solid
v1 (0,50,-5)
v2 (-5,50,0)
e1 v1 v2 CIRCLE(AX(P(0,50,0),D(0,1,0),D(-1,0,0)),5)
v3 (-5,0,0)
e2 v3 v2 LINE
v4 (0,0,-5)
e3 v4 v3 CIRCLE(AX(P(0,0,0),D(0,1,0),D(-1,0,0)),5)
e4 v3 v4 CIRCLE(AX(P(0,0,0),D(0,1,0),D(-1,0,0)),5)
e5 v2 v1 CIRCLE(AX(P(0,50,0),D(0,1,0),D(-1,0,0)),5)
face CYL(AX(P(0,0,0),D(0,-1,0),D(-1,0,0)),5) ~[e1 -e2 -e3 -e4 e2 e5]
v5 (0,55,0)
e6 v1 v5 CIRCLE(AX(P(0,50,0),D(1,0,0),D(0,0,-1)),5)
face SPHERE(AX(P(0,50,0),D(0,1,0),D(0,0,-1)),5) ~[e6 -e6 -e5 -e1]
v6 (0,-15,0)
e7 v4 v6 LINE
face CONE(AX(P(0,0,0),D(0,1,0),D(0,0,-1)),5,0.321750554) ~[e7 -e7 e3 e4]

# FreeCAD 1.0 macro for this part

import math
import FreeCAD as App
import Part
import Sketcher


def add_polygon(sketch, points):
    """Adds a closed chain of lines whose ends are joined by coincident constraints."""
    first, n = sketch.GeometryCount, len(points)
    for a, b in zip(points, points[1:] + points[:1]):
        sketch.addGeometry(Part.LineSegment(App.Vector(*a, 0), App.Vector(*b, 0)), False)
    for i in range(n):
        sketch.addConstraint(Sketcher.Constraint("Coincident", first + i, 2, first + (i + 1) % n, 1))

doc = App.newDocument("Part")
body = doc.addObject("PartDesign::Body", "Body")

sketch1 = body.newObject("Sketcher::SketchObject", "Sketch")
sketch1.AttachmentSupport = (doc.getObject("XZ_Plane"), [""])
sketch1.MapMode = "FlatFace"
sketch1.addGeometry(Part.Circle(App.Vector(0, 0, 0), App.Vector(0, 0, 1), 5), False)
sketch1.addConstraint([
    Sketcher.Constraint("Coincident", 0, 3, -1, 1),
    Sketcher.Constraint("Diameter", 0, 10.0),
])
pad1 = body.newObject("PartDesign::Pad", "Pad")
pad1.Profile = sketch1
pad1.Length = 50
pad1.Reversed = True

sketch2 = body.newObject("Sketcher::SketchObject", "Sketch001")
sketch2.AttachmentSupport = (doc.getObject("YZ_Plane"), [""])
sketch2.MapMode = "FlatFace"
add_polygon(sketch2, [(0, -5), (0, 0), (-15, 0)])
sketch2.addConstraint([
    Sketcher.Constraint("Vertical", 0),
    Sketcher.Constraint("Horizontal", 1),
    Sketcher.Constraint("Coincident", 0, 2, -1, 1),
    Sketcher.Constraint("DistanceX", 1, 2, 1, 1, 15.0),
    Sketcher.Constraint("DistanceY", 0, 1, 0, 2, 5.0),
])
revolution = body.newObject("PartDesign::Revolution", "Revolution")
revolution.Profile = sketch2
revolution.ReferenceAxis = (sketch2, ["H_Axis"])
revolution.Angle = 360

sketch3 = body.newObject("Sketcher::SketchObject", "Sketch002")
sketch3.AttachmentSupport = (doc.getObject("YZ_Plane"), [""])
sketch3.MapMode = "FlatFace"
sketch3.addGeometry([
    Part.LineSegment(App.Vector(50, 0, 0), App.Vector(50, -5, 0)),
    Part.ArcOfCircle(Part.Circle(App.Vector(50, 0, 0), App.Vector(0, 0, 1), 5), math.radians(-90), math.radians(0)),
    Part.LineSegment(App.Vector(55, 0, 0), App.Vector(50, 0, 0)),
], False)
sketch3.addConstraint([
    Sketcher.Constraint("Coincident", 0, 2, 1, 1),
    Sketcher.Constraint("Coincident", 1, 2, 2, 1),
    Sketcher.Constraint("Coincident", 2, 2, 0, 1),
    Sketcher.Constraint("Vertical", 0),
    Sketcher.Constraint("Horizontal", 2),
    Sketcher.Constraint("Coincident", 2, 2, 1, 3),
    Sketcher.Constraint("PointOnObject", 1, 3, -1),
    Sketcher.Constraint("Radius", 1, 5.0),
    Sketcher.Constraint("DistanceX", -1, 1, 1, 3, 50.0),
])
revolution2 = body.newObject("PartDesign::Revolution", "Revolution001")
revolution2.Profile = sketch3
revolution2.ReferenceAxis = (sketch3, ["H_Axis"])
revolution2.Angle = 360

doc.recompute()
